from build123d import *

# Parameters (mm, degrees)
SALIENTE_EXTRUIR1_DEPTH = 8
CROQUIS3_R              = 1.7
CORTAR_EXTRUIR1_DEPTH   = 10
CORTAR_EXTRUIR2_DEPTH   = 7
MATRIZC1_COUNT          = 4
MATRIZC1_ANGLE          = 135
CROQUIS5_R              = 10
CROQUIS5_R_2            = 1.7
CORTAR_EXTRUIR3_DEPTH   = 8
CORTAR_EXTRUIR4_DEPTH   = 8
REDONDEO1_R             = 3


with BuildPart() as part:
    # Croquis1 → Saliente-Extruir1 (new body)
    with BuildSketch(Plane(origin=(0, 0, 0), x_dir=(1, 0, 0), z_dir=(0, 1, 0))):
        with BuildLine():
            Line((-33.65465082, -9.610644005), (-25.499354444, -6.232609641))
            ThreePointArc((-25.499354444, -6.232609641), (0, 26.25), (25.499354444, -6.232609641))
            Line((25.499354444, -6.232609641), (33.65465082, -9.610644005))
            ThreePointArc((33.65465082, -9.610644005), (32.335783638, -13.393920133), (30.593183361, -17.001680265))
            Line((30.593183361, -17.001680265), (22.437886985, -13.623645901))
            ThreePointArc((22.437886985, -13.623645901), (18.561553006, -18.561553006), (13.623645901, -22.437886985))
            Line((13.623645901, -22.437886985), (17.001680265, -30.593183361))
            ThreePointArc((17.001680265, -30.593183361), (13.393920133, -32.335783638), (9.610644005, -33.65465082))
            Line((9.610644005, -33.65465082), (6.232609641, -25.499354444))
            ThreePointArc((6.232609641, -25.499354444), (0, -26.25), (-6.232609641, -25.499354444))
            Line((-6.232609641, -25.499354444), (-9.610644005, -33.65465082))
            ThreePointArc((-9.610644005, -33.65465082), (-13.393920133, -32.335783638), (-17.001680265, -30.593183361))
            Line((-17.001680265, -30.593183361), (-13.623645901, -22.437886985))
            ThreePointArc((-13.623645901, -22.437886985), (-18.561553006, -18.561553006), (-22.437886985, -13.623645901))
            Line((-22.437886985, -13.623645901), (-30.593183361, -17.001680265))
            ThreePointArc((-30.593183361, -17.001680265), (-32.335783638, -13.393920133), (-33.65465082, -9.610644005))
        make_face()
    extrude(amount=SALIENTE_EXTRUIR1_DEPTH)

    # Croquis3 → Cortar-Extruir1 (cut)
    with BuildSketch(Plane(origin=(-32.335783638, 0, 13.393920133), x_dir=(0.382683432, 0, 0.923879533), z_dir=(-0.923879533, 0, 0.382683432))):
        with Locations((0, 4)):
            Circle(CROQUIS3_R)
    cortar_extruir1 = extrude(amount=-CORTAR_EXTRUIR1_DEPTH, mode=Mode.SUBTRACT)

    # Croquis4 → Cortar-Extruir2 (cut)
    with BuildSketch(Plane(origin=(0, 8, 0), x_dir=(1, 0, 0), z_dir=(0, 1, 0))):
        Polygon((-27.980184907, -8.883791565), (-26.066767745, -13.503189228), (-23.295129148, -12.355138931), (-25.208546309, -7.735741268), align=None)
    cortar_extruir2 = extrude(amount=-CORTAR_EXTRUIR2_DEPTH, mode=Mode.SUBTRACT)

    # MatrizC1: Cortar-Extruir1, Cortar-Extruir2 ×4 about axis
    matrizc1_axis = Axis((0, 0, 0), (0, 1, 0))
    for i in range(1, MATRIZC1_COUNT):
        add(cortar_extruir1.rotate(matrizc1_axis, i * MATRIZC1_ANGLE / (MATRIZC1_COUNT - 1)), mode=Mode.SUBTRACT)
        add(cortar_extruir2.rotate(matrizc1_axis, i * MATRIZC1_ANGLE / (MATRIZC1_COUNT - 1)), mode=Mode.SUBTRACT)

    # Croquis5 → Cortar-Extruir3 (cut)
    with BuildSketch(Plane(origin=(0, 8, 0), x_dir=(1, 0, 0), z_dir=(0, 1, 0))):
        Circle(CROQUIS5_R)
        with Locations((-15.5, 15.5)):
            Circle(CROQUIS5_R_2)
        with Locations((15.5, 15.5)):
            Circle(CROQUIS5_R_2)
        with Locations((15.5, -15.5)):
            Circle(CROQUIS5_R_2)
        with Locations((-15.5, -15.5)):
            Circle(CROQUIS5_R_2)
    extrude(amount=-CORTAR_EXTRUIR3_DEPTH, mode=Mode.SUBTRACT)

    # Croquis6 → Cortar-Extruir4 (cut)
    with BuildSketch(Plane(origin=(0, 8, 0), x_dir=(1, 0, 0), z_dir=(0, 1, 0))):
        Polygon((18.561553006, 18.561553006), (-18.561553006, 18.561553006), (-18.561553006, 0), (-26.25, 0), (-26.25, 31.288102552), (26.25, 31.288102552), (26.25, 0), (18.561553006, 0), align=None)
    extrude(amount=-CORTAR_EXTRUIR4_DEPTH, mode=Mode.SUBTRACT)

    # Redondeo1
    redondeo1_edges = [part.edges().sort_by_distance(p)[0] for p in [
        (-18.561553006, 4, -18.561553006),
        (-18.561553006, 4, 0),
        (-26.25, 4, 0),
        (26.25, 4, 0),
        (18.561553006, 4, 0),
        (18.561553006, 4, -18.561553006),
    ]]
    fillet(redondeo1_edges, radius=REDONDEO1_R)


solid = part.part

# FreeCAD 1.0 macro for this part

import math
import FreeCAD as App
import Part
import Sketcher

V = App.Vector
Q = App.Units.Quantity


def edges_at(feature, points):
    """Names of the edges that pass closest to the given points."""
    edges = feature.Shape.Edges
    near = lambda p: min(range(len(edges)), key=lambda i: edges[i].distToShape(Part.Vertex(*p))[0])
    return sorted({f"Edge{near(p) + 1}" for p in points})

doc = App.newDocument("Part")
params = doc.addObject("Spreadsheet::Sheet", "Params")
for row, (alias, value) in enumerate([
    ("sketch1_radius", "35 mm"),
    ("sketch1_radius2", "26.25 mm"),
    ("pad1_length", "8 mm"),
    ("sketch2_diameter", "3.4 mm"),
    ("pocket1_length", "10 mm"),
    ("sketch3_length", "5 mm"),
    ("sketch3_length2", "3 mm"),
    ("pocket2_length", "7 mm"),
    ("sketch4_diameter", "20 mm"),
    ("sketch4_diameter2", "3.4 mm"),
    ("pocket3_length", "8 mm"),
    ("sketch5_width", "52.5 mm"),
    ("pocket4_length", "8 mm"),
    ("fillet_radius", "3 mm"),
], start=1):
    params.set(f"A{row}", alias)
    params.set(f"B{row}", "=" + value)
    params.setAlias(f"B{row}", alias)

body = doc.addObject("PartDesign::Body", "Body")

sketch1 = body.newObject("Sketcher::SketchObject", "Sketch")
sketch1.AttachmentSupport = (doc.getObject("XZ_Plane"), [""])
sketch1.MapMode = "FlatFace"
sketch1.addGeometry([
    Part.LineSegment(V(-25.499354, 6.23261, 0), V(-33.654651, 9.610644, 0)),
    Part.ArcOfCircle(Part.Circle(V(0, 0, 0), V(0, 0, 1), 35), math.radians(150.937572), math.radians(164.062428)),
    Part.LineSegment(V(-30.593183, 17.00168, 0), V(-22.437887, 13.623646, 0)),
    Part.ArcOfCircle(Part.Circle(V(0, 0, 0), V(0, 0, 1), 26.25), math.radians(121.264932), math.radians(148.735068)),
    Part.LineSegment(V(-13.623646, 22.437887, 0), V(-17.00168, 30.593183, 0)),
    Part.ArcOfCircle(Part.Circle(V(0, 0, 0), V(0, 0, 1), 35), math.radians(105.937572), math.radians(119.062428)),
    Part.LineSegment(V(-9.610644, 33.654651, 0), V(-6.23261, 25.499354, 0)),
    Part.ArcOfCircle(Part.Circle(V(0, 0, 0), V(0, 0, 1), 26.25), math.radians(76.264932), math.radians(103.735068)),
    Part.LineSegment(V(6.23261, 25.499354, 0), V(9.610644, 33.654651, 0)),
    Part.ArcOfCircle(Part.Circle(V(0, 0, 0), V(0, 0, 1), 35), math.radians(60.937572), math.radians(74.062428)),
    Part.LineSegment(V(17.00168, 30.593183, 0), V(13.623646, 22.437887, 0)),
    Part.ArcOfCircle(Part.Circle(V(0, 0, 0), V(0, 0, 1), 26.25), math.radians(31.264932), math.radians(58.735068)),
    Part.LineSegment(V(22.437887, 13.623646, 0), V(30.593183, 17.00168, 0)),
    Part.ArcOfCircle(Part.Circle(V(0, 0, 0), V(0, 0, 1), 35), math.radians(15.937572), math.radians(29.062428)),
    Part.LineSegment(V(33.654651, 9.610644, 0), V(25.499354, 6.23261, 0)),
    Part.ArcOfCircle(Part.Circle(V(0, 0, 0), V(0, 0, 1), 26.25), math.radians(166.264932), math.radians(373.735068)),
], False)
sketch1.addConstraint([
    Sketcher.Constraint("Coincident", 0, 2, 1, 2),
    Sketcher.Constraint("Coincident", 1, 1, 2, 1),
    Sketcher.Constraint("Coincident", 2, 2, 3, 2),
    Sketcher.Constraint("Coincident", 3, 1, 4, 1),
    Sketcher.Constraint("Coincident", 4, 2, 5, 2),
    Sketcher.Constraint("Coincident", 5, 1, 6, 1),
    Sketcher.Constraint("Coincident", 6, 2, 7, 2),
    Sketcher.Constraint("Coincident", 7, 1, 8, 1),
    Sketcher.Constraint("Coincident", 8, 2, 9, 2),
    Sketcher.Constraint("Coincident", 9, 1, 10, 1),
    Sketcher.Constraint("Coincident", 10, 2, 11, 2),
    Sketcher.Constraint("Coincident", 11, 1, 12, 1),
    Sketcher.Constraint("Coincident", 12, 2, 13, 2),
    Sketcher.Constraint("Coincident", 13, 1, 14, 1),
    Sketcher.Constraint("Coincident", 14, 2, 15, 2),
    Sketcher.Constraint("Coincident", 15, 1, 0, 1),
    Sketcher.Constraint("Coincident", 1, 3, -1, 1),
    Sketcher.Constraint("Coincident", 3, 3, -1, 1),
    Sketcher.Constraint("Coincident", 5, 3, -1, 1),
    Sketcher.Constraint("Coincident", 7, 3, -1, 1),
    Sketcher.Constraint("Coincident", 9, 3, -1, 1),
    Sketcher.Constraint("Coincident", 11, 3, -1, 1),
    Sketcher.Constraint("Coincident", 13, 3, -1, 1),
    Sketcher.Constraint("Coincident", 15, 3, -1, 1),
    Sketcher.Constraint("Equal", 1, 5),
    Sketcher.Constraint("Equal", 3, 7),
    Sketcher.Constraint("Equal", 5, 9),
    Sketcher.Constraint("Equal", 7, 11),
    Sketcher.Constraint("Equal", 9, 13),
    Sketcher.Constraint("Equal", 11, 15),
    Sketcher.Constraint("Parallel", 0, 2),
    Sketcher.Constraint("Parallel", 4, 6),
    Sketcher.Constraint("Perpendicular", 2, 8),
    Sketcher.Constraint("Parallel", 8, 10),
    Sketcher.Constraint("Perpendicular", 6, 12),
    Sketcher.Constraint("Parallel", 12, 14),
    Sketcher.Constraint("Horizontal", 6, 2, 7, 1),
    Sketcher.Constraint("Horizontal", 5, 1, 8, 2),
    Sketcher.Constraint("Horizontal", 4, 2, 9, 1),
    Sketcher.Constraint("Horizontal", 2, 2, 11, 1),
    Sketcher.Constraint("Horizontal", 0, 2, 13, 1),
    Sketcher.Constraint("Equal", 0, 2),
    Sketcher.Constraint("Equal", 2, 4),
    Sketcher.Constraint("Equal", 4, 6),
    Sketcher.Constraint("Radius", 1, Q("35 mm")),
    Sketcher.Constraint("Radius", 3, Q("26.25 mm")),
    Sketcher.Constraint("Angle", 0, Q("157.5 deg")),
    Sketcher.Constraint("DistanceY", 0, 2, 2, 2, Q("4.013002 mm")),
])
sketch1.setExpression("Constraints[44]", "Params.sketch1_radius")
sketch1.setExpression("Constraints[45]", "Params.sketch1_radius2")
pad1 = body.newObject("PartDesign::Pad", "Pad")
pad1.Profile = sketch1
pad1.setExpression("Length", "Params.pad1_length")
pad1.Reversed = True

sketch2 = body.newObject("Sketcher::SketchObject", "Sketch001")
sketch2.Placement = App.Placement(V(-32.335784, 0, 13.39392), App.Rotation(V(0.382683432, 0, 0.923879533), V(0, 1.000000001, 0), V(-0.923879533, 0, 0.382683432), "ZXY"))
sketch2.addGeometry(Part.Circle(V(0, 4, 0), V(0, 0, 1), 1.7), False)
sketch2.addConstraint([
    Sketcher.Constraint("PointOnObject", 0, 3, -2),
    Sketcher.Constraint("Diameter", 0, Q("3.4 mm")),
    Sketcher.Constraint("DistanceY", -1, 1, 0, 3, Q("4 mm")),
])
sketch2.setExpression("Constraints[1]", "Params.sketch2_diameter")
pocket1 = body.newObject("PartDesign::Pocket", "Pocket")
pocket1.Profile = sketch2
pocket1.setExpression("Length", "Params.pocket1_length")

sketch3 = body.newObject("Sketcher::SketchObject", "Sketch002")
sketch3.AttachmentSupport = (doc.getObject("XZ_Plane"), [""])
sketch3.MapMode = "FlatFace"
sketch3.AttachmentOffset = App.Placement(V(0, 0, -8), App.Rotation())
sketch3.addGeometry([
    Part.LineSegment(V(-27.980185, 8.883792, 0), V(-26.066768, 13.503189, 0)),
    Part.LineSegment(V(-26.066768, 13.503189, 0), V(-23.295129, 12.355139, 0)),
    Part.LineSegment(V(-23.295129, 12.355139, 0), V(-25.208546, 7.735741, 0)),
    Part.LineSegment(V(-25.208546, 7.735741, 0), V(-27.980185, 8.883792, 0)),
], False)
sketch3.addConstraint([
    Sketcher.Constraint("Coincident", 0, 2, 1, 1),
    Sketcher.Constraint("Coincident", 1, 2, 2, 1),
    Sketcher.Constraint("Coincident", 2, 2, 3, 1),
    Sketcher.Constraint("Coincident", 3, 2, 0, 1),
    Sketcher.Constraint("Perpendicular", 0, 1),
    Sketcher.Constraint("Perpendicular", 1, 2),
    Sketcher.Constraint("Perpendicular", 2, 3),
    Sketcher.Constraint("Distance", 0, Q("5 mm")),
    Sketcher.Constraint("Distance", 1, Q("3 mm")),
    Sketcher.Constraint("Angle", 0, Q("67.5 deg")),
    Sketcher.Constraint("DistanceY", -1, 1, 0, 2, Q("13.503189 mm")),
    Sketcher.Constraint("DistanceX", 1, 2, -1, 1, Q("23.295129 mm")),
])
sketch3.setExpression("Constraints[7]", "Params.sketch3_length")
sketch3.setExpression("Constraints[8]", "Params.sketch3_length2")
pocket2 = body.newObject("PartDesign::Pocket", "Pocket001")
pocket2.Profile = sketch3
pocket2.setExpression("Length", "Params.pocket2_length")
pocket2.Reversed = True
doc.recompute()

polarpattern = body.newObject("PartDesign::PolarPattern", "PolarPattern")
polarpattern.Originals = [pocket1, pocket2]
polarpattern.Axis = (doc.getObject("Y_Axis"), [""])
polarpattern.Angle = 135
polarpattern.Occurrences = 4
body.Tip = polarpattern

sketch4 = body.newObject("Sketcher::SketchObject", "Sketch003")
sketch4.AttachmentSupport = (doc.getObject("XZ_Plane"), [""])
sketch4.MapMode = "FlatFace"
sketch4.AttachmentOffset = App.Placement(V(0, 0, -8), App.Rotation())
sketch4.addGeometry([
    Part.Circle(V(0, 0, 0), V(0, 0, 1), 10),
    Part.Circle(V(-15.5, -15.5, 0), V(0, 0, 1), 1.7),
    Part.Circle(V(15.5, -15.5, 0), V(0, 0, 1), 1.7),
    Part.Circle(V(15.5, 15.5, 0), V(0, 0, 1), 1.7),
    Part.Circle(V(-15.5, 15.5, 0), V(0, 0, 1), 1.7),
], False)
sketch4.addConstraint([
    Sketcher.Constraint("Coincident", 0, 3, -1, 1),
    Sketcher.Constraint("Equal", 1, 2),
    Sketcher.Constraint("Equal", 2, 3),
    Sketcher.Constraint("Equal", 3, 4),
    Sketcher.Constraint("Symmetric", 1, 3, 3, 3, -1, 1),
    Sketcher.Constraint("Symmetric", 2, 3, 4, 3, -1, 1),
    Sketcher.Constraint("Symmetric", 1, 3, 2, 3, -2),
    Sketcher.Constraint("Diameter", 0, Q("20 mm")),
    Sketcher.Constraint("Diameter", 1, Q("3.4 mm")),
    Sketcher.Constraint("DistanceX", 1, 3, 2, 3, Q("31 mm")),
    Sketcher.Constraint("DistanceY", 2, 3, 3, 3, Q("31 mm")),
])
sketch4.setExpression("Constraints[7]", "Params.sketch4_diameter")
sketch4.setExpression("Constraints[8]", "Params.sketch4_diameter2")
pocket3 = body.newObject("PartDesign::Pocket", "Pocket002")
pocket3.Profile = sketch4
pocket3.setExpression("Length", "Params.pocket3_length")
pocket3.Reversed = True

sketch5 = body.newObject("Sketcher::SketchObject", "Sketch004")
sketch5.AttachmentSupport = (doc.getObject("XZ_Plane"), [""])
sketch5.MapMode = "FlatFace"
sketch5.AttachmentOffset = App.Placement(V(0, 0, -8), App.Rotation())
sketch5.addGeometry([
    Part.LineSegment(V(-18.561553, -18.561553, 0), V(18.561553, -18.561553, 0)),
    Part.LineSegment(V(18.561553, -18.561553, 0), V(18.561553, 0, 0)),
    Part.LineSegment(V(18.561553, 0, 0), V(26.25, 0, 0)),
    Part.LineSegment(V(26.25, 0, 0), V(26.25, -31.288103, 0)),
    Part.LineSegment(V(26.25, -31.288103, 0), V(-26.25, -31.288103, 0)),
    Part.LineSegment(V(-26.25, -31.288103, 0), V(-26.25, 0, 0)),
    Part.LineSegment(V(-26.25, 0, 0), V(-18.561553, 0, 0)),
    Part.LineSegment(V(-18.561553, 0, 0), V(-18.561553, -18.561553, 0)),
], False)
sketch5.addConstraint([
    Sketcher.Constraint("Coincident", 0, 2, 1, 1),
    Sketcher.Constraint("Coincident", 1, 2, 2, 1),
    Sketcher.Constraint("Coincident", 2, 2, 3, 1),
    Sketcher.Constraint("Coincident", 3, 2, 4, 1),
    Sketcher.Constraint("Coincident", 4, 2, 5, 1),
    Sketcher.Constraint("Coincident", 5, 2, 6, 1),
    Sketcher.Constraint("Coincident", 6, 2, 7, 1),
    Sketcher.Constraint("Coincident", 7, 2, 0, 1),
    Sketcher.Constraint("Horizontal", 0),
    Sketcher.Constraint("Vertical", 1),
    Sketcher.Constraint("Horizontal", 2),
    Sketcher.Constraint("Vertical", 3),
    Sketcher.Constraint("Horizontal", 4),
    Sketcher.Constraint("Vertical", 5),
    Sketcher.Constraint("Horizontal", 6),
    Sketcher.Constraint("Vertical", 7),
    Sketcher.Constraint("Symmetric", 2, 2, 5, 2, -1, 1),
    Sketcher.Constraint("Symmetric", 1, 2, 6, 2, -2),
    Sketcher.Constraint("DistanceX", 4, 2, 4, 1, Q("52.5 mm")),
    Sketcher.Constraint("DistanceX", 0, 1, 0, 2, Q("37.123106 mm")),
    Sketcher.Constraint("DistanceY", 1, 1, 1, 2, Q("18.561553 mm")),
    Sketcher.Constraint("DistanceY", 3, 2, 3, 1, Q("31.288103 mm")),
])
sketch5.setExpression("Constraints[18]", "Params.sketch5_width")
pocket4 = body.newObject("PartDesign::Pocket", "Pocket003")
pocket4.Profile = sketch5
pocket4.setExpression("Length", "Params.pocket4_length")
pocket4.Reversed = True
doc.recompute()

fillet = body.newObject("PartDesign::Fillet", "Fillet")
fillet.Base = (pocket4, edges_at(pocket4, [
    (-18.562, 4, -18.562),
    (-18.562, 4, 0),
    (-26.25, 4, 0),
    (26.25, 4, 0),
    (18.562, 4, 0),
    (18.562, 4, -18.562),
]))
fillet.setExpression("Radius", "Params.fillet_radius")

doc.recompute()
